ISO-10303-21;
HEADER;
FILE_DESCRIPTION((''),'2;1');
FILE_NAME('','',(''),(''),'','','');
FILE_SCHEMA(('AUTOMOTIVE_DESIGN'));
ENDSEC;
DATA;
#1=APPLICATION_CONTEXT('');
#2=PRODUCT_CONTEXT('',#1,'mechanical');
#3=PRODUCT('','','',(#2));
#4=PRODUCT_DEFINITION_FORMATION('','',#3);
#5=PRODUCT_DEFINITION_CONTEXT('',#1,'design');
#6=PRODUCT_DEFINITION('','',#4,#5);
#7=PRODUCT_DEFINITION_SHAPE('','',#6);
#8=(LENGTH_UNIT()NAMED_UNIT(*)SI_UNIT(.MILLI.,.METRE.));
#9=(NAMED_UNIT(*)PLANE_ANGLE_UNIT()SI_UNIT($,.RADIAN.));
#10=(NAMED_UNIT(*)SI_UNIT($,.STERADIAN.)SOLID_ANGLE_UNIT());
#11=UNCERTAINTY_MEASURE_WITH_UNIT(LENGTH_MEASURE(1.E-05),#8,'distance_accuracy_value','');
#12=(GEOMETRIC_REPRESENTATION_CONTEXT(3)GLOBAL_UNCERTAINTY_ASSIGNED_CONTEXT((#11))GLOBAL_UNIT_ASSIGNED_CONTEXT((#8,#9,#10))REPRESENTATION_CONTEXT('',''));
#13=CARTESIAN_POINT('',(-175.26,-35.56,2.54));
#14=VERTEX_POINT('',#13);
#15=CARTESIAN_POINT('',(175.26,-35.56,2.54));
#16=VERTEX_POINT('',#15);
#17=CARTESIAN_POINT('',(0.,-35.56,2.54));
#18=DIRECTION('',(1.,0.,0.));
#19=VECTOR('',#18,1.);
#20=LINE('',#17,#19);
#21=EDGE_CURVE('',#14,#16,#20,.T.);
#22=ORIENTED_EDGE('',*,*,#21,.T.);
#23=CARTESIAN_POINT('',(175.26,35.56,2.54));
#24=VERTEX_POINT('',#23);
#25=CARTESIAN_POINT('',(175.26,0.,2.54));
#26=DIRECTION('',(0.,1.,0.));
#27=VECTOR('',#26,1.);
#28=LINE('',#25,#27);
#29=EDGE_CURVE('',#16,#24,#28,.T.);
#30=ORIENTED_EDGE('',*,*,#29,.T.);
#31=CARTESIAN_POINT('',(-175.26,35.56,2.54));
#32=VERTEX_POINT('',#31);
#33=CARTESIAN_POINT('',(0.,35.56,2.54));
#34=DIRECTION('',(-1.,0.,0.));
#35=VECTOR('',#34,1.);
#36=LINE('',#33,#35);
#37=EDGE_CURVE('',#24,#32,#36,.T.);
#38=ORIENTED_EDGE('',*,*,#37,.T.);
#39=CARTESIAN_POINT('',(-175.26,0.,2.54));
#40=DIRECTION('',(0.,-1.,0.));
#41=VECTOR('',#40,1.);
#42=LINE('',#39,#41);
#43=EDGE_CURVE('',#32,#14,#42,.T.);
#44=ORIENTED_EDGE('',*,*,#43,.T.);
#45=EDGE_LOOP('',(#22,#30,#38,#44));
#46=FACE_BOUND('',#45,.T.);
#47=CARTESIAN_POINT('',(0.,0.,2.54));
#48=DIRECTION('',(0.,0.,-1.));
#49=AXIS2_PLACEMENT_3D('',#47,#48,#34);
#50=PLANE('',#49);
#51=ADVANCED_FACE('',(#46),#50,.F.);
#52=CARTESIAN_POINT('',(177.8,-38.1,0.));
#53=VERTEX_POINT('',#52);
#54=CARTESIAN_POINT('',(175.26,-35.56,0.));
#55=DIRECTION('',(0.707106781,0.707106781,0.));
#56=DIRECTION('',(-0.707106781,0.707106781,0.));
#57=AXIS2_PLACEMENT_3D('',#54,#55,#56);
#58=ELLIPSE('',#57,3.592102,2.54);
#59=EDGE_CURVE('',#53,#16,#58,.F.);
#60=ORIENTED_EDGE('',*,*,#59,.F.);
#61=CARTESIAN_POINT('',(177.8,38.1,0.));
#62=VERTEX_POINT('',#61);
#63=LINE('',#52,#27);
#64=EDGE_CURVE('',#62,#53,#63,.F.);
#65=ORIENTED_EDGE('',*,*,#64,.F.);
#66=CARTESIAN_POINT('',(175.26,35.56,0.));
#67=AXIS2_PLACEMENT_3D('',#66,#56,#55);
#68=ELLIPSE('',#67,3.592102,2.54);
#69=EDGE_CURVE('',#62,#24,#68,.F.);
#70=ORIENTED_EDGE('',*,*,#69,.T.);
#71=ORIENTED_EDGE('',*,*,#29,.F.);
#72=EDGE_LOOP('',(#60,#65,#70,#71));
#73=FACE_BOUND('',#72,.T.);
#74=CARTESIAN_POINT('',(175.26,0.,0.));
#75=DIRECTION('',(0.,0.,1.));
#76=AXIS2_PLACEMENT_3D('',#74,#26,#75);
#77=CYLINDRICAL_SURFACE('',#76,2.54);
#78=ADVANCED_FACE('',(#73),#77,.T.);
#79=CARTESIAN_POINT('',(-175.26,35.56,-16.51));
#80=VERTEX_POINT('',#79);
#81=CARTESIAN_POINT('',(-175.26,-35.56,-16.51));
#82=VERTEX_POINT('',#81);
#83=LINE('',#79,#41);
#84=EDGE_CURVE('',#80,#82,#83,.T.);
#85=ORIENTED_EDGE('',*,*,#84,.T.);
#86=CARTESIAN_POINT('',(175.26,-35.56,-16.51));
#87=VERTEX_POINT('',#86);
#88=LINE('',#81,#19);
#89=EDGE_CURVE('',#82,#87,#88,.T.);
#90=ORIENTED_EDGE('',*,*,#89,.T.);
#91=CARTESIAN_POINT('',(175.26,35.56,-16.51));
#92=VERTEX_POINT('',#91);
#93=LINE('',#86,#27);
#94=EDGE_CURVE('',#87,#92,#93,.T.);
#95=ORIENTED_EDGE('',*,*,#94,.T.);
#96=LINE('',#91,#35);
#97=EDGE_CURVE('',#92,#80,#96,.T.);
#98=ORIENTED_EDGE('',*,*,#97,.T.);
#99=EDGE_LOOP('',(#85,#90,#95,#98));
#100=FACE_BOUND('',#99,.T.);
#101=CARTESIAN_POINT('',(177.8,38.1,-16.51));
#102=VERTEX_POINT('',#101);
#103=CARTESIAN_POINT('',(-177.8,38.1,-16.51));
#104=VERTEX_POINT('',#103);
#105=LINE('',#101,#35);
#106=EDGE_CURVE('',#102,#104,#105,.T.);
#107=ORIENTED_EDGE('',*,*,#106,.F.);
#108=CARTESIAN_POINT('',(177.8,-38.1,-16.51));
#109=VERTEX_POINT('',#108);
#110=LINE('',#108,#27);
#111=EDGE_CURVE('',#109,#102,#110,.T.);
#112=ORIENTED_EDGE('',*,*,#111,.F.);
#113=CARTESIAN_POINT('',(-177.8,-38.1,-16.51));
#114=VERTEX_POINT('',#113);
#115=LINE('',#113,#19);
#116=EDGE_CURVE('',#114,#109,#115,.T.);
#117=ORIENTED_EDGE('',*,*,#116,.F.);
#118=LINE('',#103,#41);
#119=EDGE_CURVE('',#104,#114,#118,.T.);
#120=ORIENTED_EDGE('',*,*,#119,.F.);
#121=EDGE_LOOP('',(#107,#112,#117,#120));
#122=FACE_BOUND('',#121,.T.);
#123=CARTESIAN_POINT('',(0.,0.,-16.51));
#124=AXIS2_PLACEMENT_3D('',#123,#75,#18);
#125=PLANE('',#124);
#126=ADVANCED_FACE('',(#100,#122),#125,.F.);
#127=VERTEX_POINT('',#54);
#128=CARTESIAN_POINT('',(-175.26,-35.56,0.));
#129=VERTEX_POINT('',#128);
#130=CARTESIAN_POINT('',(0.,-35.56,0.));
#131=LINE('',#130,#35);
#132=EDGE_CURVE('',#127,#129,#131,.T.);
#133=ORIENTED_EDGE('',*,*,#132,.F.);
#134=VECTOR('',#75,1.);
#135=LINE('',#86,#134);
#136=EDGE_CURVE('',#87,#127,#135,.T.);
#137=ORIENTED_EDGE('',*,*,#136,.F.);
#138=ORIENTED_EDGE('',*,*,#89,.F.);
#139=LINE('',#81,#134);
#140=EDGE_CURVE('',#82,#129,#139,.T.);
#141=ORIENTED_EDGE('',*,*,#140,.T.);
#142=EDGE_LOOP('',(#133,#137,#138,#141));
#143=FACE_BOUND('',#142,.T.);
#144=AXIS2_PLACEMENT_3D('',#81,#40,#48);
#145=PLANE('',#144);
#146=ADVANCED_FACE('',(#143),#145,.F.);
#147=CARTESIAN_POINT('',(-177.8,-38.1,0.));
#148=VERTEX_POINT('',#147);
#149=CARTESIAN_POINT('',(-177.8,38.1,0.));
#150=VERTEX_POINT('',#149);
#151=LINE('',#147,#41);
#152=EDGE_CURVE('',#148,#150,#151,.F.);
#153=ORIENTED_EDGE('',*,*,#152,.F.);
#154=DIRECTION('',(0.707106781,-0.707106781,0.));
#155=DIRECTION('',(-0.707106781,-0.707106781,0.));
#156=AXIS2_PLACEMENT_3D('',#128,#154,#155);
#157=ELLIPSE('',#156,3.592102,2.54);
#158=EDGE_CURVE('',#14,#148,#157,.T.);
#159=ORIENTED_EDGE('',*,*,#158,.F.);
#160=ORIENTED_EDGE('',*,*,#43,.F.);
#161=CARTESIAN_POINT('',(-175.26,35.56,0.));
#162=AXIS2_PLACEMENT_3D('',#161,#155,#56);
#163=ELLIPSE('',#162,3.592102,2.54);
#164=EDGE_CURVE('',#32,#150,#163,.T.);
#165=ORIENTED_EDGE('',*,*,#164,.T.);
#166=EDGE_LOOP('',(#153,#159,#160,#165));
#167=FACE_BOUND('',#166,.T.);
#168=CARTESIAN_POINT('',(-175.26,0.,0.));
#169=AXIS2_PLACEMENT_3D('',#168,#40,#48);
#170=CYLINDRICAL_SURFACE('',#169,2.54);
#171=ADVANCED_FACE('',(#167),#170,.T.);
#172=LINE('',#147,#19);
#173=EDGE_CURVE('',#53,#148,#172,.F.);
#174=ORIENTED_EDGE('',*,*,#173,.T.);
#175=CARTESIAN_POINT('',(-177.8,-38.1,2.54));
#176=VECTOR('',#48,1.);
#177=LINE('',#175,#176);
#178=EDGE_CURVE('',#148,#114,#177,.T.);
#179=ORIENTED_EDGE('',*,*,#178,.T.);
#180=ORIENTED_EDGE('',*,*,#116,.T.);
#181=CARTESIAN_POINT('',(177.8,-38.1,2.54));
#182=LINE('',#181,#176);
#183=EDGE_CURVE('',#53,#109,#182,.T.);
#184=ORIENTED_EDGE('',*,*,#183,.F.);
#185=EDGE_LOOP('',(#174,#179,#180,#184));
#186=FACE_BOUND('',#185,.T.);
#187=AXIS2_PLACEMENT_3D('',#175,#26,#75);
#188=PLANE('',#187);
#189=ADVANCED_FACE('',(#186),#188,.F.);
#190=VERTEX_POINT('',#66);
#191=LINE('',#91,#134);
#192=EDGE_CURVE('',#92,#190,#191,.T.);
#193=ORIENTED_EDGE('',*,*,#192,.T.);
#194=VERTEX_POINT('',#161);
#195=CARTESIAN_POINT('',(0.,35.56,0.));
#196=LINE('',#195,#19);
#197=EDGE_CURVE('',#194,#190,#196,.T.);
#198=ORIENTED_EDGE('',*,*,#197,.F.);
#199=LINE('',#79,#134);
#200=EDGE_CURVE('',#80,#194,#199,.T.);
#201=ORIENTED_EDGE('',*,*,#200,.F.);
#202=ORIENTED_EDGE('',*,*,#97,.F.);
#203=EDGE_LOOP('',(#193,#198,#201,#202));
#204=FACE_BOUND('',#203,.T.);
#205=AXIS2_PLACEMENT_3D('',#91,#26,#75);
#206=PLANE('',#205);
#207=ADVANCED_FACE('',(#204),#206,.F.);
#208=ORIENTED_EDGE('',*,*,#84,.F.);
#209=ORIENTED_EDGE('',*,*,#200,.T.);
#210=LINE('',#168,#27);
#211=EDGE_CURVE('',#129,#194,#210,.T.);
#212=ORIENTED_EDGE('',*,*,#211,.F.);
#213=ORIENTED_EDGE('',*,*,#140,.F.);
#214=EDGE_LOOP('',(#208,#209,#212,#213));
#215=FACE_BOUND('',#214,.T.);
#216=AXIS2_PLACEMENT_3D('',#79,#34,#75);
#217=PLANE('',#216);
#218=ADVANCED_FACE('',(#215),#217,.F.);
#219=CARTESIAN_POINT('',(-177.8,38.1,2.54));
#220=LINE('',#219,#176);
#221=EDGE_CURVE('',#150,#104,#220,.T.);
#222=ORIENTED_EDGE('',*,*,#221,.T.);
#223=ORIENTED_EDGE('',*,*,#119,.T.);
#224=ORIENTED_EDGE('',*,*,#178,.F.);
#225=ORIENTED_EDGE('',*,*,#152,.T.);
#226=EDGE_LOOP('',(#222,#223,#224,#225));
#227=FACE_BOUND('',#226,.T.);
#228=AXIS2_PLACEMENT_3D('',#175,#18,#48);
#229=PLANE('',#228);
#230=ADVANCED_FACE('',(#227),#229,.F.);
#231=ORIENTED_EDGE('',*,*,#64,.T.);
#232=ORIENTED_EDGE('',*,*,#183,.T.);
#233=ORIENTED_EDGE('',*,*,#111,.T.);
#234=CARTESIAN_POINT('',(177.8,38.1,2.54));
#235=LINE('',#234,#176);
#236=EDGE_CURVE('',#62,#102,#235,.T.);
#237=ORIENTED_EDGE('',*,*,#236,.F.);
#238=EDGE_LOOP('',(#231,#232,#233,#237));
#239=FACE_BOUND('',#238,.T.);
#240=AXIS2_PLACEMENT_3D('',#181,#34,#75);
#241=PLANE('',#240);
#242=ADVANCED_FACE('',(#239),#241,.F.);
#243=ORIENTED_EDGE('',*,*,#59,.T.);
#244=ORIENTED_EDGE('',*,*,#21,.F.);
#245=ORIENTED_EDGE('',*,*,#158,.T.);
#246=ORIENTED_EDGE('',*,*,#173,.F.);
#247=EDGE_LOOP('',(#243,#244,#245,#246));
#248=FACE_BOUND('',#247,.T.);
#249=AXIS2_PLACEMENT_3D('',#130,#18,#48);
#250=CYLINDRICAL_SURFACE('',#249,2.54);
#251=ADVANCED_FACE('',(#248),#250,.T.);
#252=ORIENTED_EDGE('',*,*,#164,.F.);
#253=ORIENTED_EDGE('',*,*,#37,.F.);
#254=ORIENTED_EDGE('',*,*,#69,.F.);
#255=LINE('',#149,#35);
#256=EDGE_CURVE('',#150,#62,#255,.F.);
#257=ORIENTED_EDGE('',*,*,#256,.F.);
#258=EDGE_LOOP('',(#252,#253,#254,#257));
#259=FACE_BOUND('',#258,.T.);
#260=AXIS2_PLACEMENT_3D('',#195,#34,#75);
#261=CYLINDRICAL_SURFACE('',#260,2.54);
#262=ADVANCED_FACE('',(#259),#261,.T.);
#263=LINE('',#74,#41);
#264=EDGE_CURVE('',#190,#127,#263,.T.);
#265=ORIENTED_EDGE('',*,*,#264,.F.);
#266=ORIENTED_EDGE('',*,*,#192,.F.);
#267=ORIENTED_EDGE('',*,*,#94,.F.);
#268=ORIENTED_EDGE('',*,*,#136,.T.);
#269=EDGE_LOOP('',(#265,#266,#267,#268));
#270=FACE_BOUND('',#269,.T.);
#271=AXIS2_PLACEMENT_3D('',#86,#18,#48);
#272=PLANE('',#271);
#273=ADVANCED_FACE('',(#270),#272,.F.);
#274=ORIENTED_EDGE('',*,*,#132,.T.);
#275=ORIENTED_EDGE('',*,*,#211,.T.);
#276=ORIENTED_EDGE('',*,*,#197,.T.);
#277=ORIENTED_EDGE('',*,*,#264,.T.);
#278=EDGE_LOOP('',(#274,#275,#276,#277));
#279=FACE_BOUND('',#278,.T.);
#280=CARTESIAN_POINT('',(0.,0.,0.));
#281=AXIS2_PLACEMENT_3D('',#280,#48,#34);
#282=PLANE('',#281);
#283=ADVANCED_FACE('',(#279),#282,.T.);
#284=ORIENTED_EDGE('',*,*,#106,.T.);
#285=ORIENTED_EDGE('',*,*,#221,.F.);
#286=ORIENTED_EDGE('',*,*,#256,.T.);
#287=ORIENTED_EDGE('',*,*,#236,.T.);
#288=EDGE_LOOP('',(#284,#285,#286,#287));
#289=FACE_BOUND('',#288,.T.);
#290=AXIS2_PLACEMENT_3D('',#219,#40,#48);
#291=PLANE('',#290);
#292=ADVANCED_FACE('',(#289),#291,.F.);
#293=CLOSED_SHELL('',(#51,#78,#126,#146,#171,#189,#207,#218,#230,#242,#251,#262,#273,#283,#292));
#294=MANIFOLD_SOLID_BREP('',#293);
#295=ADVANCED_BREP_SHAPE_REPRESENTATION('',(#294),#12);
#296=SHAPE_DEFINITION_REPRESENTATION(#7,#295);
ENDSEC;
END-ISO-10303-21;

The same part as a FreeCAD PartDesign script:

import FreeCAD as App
import Part
import Sketcher
Q = App.Units.Quantity


def edges_at(feature, points):
    """Names of the edges that pass closest to the given points."""
    edges = feature.Shape.Edges
    near = lambda p: min(range(len(edges)), key=lambda i: edges[i].distToShape(Part.Vertex(*p))[0])
    return sorted({f"Edge{near(p) + 1}" for p in points})


def add_polygon(sketch, points):
    """Adds a closed chain of lines whose ends are joined by coincident constraints."""
    first, n = sketch.GeometryCount, len(points)
    for a, b in zip(points, points[1:] + points[:1]):
        sketch.addGeometry(Part.LineSegment(App.Vector(*a, 0), App.Vector(*b, 0)), False)
    for i in range(n):
        sketch.addConstraint(Sketcher.Constraint("Coincident", first + i, 2, first + (i + 1) % n, 1))

doc = App.newDocument("Part")
body = doc.addObject("PartDesign::Body", "Body")

# Sketch on XY plane
sketch1 = doc.addObject("Sketcher::SketchObject", "Sketch")
body.addObject(sketch1)
sketch1.AttachmentSupport = (doc.XY_Plane, [""])
sketch1.MapMode = "FlatFace"
add_polygon(sketch1, [(-177.8, 38.1), (-177.8, -38.1), (177.8, -38.1), (177.8, 38.1)])  # lines 0-3
sketch1.addConstraint([
    Sketcher.Constraint("Vertical", 0),
    Sketcher.Constraint("Horizontal", 1),
    Sketcher.Constraint("Vertical", 2),
    Sketcher.Constraint("Horizontal", 3),
    Sketcher.Constraint("Symmetric", 0, 2, 2, 2, -1, 1),
    Sketcher.Constraint("DistanceX", 1, 1, 1, 2, Q("14 in")),
    Sketcher.Constraint("DistanceY", 0, 2, 0, 1, Q("3 in")),
])
pad1 = doc.addObject("PartDesign::Pad", "Pad")
body.addObject(pad1)
pad1.Profile = sketch1
pad1.Length = Q("0.1 in")

# Sketch on XY plane
sketch2 = doc.addObject("Sketcher::SketchObject", "Sketch001")
body.addObject(sketch2)
sketch2.AttachmentSupport = (doc.XY_Plane, [""])
sketch2.MapMode = "FlatFace"
sketch2.AttachmentOffset = App.Placement(App.Vector(0, 0, 0.1 * 25.4), App.Rotation())
add_polygon(sketch2, [(-177.8, 38.1), (-177.8, -38.1), (177.8, -38.1), (177.8, 38.1)])  # lines 0-3
add_polygon(sketch2, [(175.26, -35.56), (-175.26, -35.56), (-175.26, 35.56), (175.26, 35.56)])  # lines 4-7
sketch2.addConstraint([
    Sketcher.Constraint("Vertical", 0),
    Sketcher.Constraint("Horizontal", 1),
    Sketcher.Constraint("Vertical", 2),
    Sketcher.Constraint("Horizontal", 3),
    Sketcher.Constraint("Horizontal", 4),
    Sketcher.Constraint("Vertical", 5),
    Sketcher.Constraint("Horizontal", 6),
    Sketcher.Constraint("Vertical", 7),
    Sketcher.Constraint("Symmetric", 0, 2, 2, 2, -1, 1),
    Sketcher.Constraint("Symmetric", 4, 2, 6, 2, -1, 1),
    Sketcher.Constraint("DistanceX", 1, 1, 1, 2, Q("14 in")),
    Sketcher.Constraint("DistanceY", 0, 2, 0, 1, Q("3 in")),
    Sketcher.Constraint("DistanceX", 4, 2, 4, 1, Q("13.8 in")),
    Sketcher.Constraint("DistanceY", 5, 1, 5, 2, Q("2.8 in")),
])
pad2 = doc.addObject("PartDesign::Pad", "Pad001")
body.addObject(pad2)
pad2.Profile = sketch2
pad2.Length = Q("0.75 in")
pad2.Reversed = True
doc.recompute()

fillet = doc.addObject("PartDesign::Fillet", "Fillet")
body.addObject(fillet)
fillet.Base = (pad2, edges_at(pad2, [
    (-177.8, 0, 2.54),
    (0, -38.1, 2.54),
    (177.8, 0, 2.54),
    (0, 38.1, 2.54),
]))
fillet.Radius = Q("0.1 in")

doc.recompute()
